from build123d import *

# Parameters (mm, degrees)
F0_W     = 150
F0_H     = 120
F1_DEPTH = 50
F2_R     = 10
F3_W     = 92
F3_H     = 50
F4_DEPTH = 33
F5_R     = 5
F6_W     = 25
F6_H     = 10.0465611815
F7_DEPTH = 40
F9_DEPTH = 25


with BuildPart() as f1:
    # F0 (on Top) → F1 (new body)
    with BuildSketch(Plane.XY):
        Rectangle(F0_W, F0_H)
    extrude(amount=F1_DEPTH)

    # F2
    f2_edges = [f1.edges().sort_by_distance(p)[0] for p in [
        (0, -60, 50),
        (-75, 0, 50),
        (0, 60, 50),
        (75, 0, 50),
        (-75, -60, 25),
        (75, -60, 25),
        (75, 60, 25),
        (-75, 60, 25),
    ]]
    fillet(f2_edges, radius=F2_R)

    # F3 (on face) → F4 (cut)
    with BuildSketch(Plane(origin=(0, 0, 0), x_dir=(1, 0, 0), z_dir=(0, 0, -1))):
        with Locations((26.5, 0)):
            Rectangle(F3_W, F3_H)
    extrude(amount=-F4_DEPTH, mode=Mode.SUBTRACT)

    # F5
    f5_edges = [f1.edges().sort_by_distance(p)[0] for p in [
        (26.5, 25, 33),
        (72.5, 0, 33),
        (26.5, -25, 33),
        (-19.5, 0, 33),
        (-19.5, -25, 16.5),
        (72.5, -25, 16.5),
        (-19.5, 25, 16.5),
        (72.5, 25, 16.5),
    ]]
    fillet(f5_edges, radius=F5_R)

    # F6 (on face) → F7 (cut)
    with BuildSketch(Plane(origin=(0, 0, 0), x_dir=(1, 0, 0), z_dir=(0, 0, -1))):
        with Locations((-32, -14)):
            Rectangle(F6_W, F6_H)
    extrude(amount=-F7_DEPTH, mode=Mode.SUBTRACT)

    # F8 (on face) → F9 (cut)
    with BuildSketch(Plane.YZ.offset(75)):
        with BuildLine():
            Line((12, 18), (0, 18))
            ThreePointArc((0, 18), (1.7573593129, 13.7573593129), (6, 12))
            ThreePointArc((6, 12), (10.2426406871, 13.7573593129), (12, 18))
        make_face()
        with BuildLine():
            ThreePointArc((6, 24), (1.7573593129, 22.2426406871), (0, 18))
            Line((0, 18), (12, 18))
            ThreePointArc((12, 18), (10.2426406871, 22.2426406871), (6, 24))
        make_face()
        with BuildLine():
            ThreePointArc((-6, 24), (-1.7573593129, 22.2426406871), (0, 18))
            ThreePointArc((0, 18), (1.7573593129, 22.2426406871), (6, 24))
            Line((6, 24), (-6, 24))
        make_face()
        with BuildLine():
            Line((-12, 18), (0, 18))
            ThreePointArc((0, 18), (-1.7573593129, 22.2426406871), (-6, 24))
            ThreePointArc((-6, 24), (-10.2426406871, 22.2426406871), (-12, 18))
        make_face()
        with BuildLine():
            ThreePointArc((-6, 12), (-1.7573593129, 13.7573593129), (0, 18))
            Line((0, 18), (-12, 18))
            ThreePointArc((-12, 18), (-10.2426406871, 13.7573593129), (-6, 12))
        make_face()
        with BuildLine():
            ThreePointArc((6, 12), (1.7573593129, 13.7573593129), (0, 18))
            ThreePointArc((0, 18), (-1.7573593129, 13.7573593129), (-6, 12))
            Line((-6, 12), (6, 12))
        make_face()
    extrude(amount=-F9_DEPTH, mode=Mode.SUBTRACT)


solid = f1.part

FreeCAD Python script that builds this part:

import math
import FreeCAD as App
import Part
import Sketcher
from FreeCAD import Vector


def edges_at(feature, points):
    """Names of the edges that pass closest to the given points."""
    edges = feature.Shape.Edges
    near = lambda p: min(range(len(edges)), key=lambda i: edges[i].distToShape(Part.Vertex(*p))[0])
    return sorted({f"Edge{near(p) + 1}" for p in points})

doc = App.newDocument("Part")
body = doc.addObject("PartDesign::Body", "Body")

sketch1 = body.newObject("Sketcher::SketchObject", "Sketch")
sketch1.AttachmentSupport = (doc.getObject("XY_Plane"), [""])
sketch1.MapMode = "FlatFace"
sketch1.addGeometry([
    Part.LineSegment(Vector(-75, 60, 0), Vector(-75, -60, 0)),
    Part.LineSegment(Vector(-75, -60, 0), Vector(75, -60, 0)),
    Part.LineSegment(Vector(75, -60, 0), Vector(75, 60, 0)),
    Part.LineSegment(Vector(75, 60, 0), Vector(-75, 60, 0)),
], False)
sketch1.addConstraint([
    Sketcher.Constraint("Coincident", 0, 2, 1, 1),
    Sketcher.Constraint("Coincident", 1, 2, 2, 1),
    Sketcher.Constraint("Coincident", 2, 2, 3, 1),
    Sketcher.Constraint("Coincident", 3, 2, 0, 1),
    Sketcher.Constraint("Vertical", 0),
    Sketcher.Constraint("Horizontal", 1),
    Sketcher.Constraint("Vertical", 2),
    Sketcher.Constraint("Horizontal", 3),
    Sketcher.Constraint("Symmetric", 0, 2, 2, 2, -1, 1),
    Sketcher.Constraint("DistanceX", 1, 1, 1, 2, 150.0),
    Sketcher.Constraint("DistanceY", 0, 2, 0, 1, 120.0),
])
pad1 = body.newObject("PartDesign::Pad", "Pad")
pad1.Profile = sketch1
pad1.Length = 50
doc.recompute()

fillet = body.newObject("PartDesign::Fillet", "Fillet")
fillet.Base = (pad1, edges_at(pad1, [
    (0, -60, 50),
    (-75, 0, 50),
    (0, 60, 50),
    (75, 0, 50),
    (-75, -60, 25),
    (75, -60, 25),
    (75, 60, 25),
    (-75, 60, 25),
]))
fillet.Radius = 10

sketch2 = body.newObject("Sketcher::SketchObject", "Sketch001")
sketch2.AttachmentSupport = (doc.getObject("XY_Plane"), [""])
sketch2.MapMode = "FlatFace"
sketch2.addGeometry([
    Part.LineSegment(Vector(-20, -25, 0), Vector(-20, 25, 0)),
    Part.LineSegment(Vector(-20, 25, 0), Vector(72, 25, 0)),
    Part.LineSegment(Vector(72, 25, 0), Vector(72, -25, 0)),
    Part.LineSegment(Vector(72, -25, 0), Vector(-20, -25, 0)),
], False)
sketch2.addConstraint([
    Sketcher.Constraint("Coincident", 0, 2, 1, 1),
    Sketcher.Constraint("Coincident", 1, 2, 2, 1),
    Sketcher.Constraint("Coincident", 2, 2, 3, 1),
    Sketcher.Constraint("Coincident", 3, 2, 0, 1),
    Sketcher.Constraint("Vertical", 0),
    Sketcher.Constraint("Horizontal", 1),
    Sketcher.Constraint("Vertical", 2),
    Sketcher.Constraint("Horizontal", 3),
    Sketcher.Constraint("DistanceX", 1, 1, 1, 2, 92.0),
    Sketcher.Constraint("DistanceY", 0, 1, 0, 2, 50.0),
    Sketcher.Constraint("DistanceY", -1, 1, 0, 2, 25.0),
    Sketcher.Constraint("DistanceX", 0, 2, -1, 1, 19.5),
])
pocket1 = body.newObject("PartDesign::Pocket", "Pocket")
pocket1.Profile = sketch2
pocket1.Length = 33
pocket1.Reversed = True
doc.recompute()

fillet2 = body.newObject("PartDesign::Fillet", "Fillet001")
fillet2.Base = (pocket1, edges_at(pocket1, [
    (26.5, 25, 33),
    (72.5, 0, 33),
    (26.5, -25, 33),
    (-19.5, 0, 33),
    (-19.5, -25, 16.5),
    (72.5, -25, 16.5),
    (-19.5, 25, 16.5),
    (72.5, 25, 16.5),
]))
fillet2.Radius = 5

sketch3 = body.newObject("Sketcher::SketchObject", "Sketch002")
sketch3.AttachmentSupport = (doc.getObject("XY_Plane"), [""])
sketch3.MapMode = "FlatFace"
sketch3.addGeometry([
    Part.LineSegment(Vector(-44, 9, 0), Vector(-44, 19, 0)),
    Part.LineSegment(Vector(-44, 19, 0), Vector(-20, 19, 0)),
    Part.LineSegment(Vector(-20, 19, 0), Vector(-20, 9, 0)),
    Part.LineSegment(Vector(-20, 9, 0), Vector(-44, 9, 0)),
], False)
sketch3.addConstraint([
    Sketcher.Constraint("Coincident", 0, 2, 1, 1),
    Sketcher.Constraint("Coincident", 1, 2, 2, 1),
    Sketcher.Constraint("Coincident", 2, 2, 3, 1),
    Sketcher.Constraint("Coincident", 3, 2, 0, 1),
    Sketcher.Constraint("Vertical", 0),
    Sketcher.Constraint("Horizontal", 1),
    Sketcher.Constraint("Vertical", 2),
    Sketcher.Constraint("Horizontal", 3),
    Sketcher.Constraint("DistanceX", 1, 1, 1, 2, 25.0),
    Sketcher.Constraint("DistanceX", 0, 2, -1, 1, 44.5),
    Sketcher.Constraint("DistanceY", 0, 1, 0, 2, 10.046561),
    Sketcher.Constraint("DistanceY", -1, 1, 0, 2, 19.023281),
])
pocket2 = body.newObject("PartDesign::Pocket", "Pocket001")
pocket2.Profile = sketch3
pocket2.Length = 40
pocket2.Reversed = True

sketch4 = body.newObject("Sketcher::SketchObject", "Sketch003")
sketch4.AttachmentSupport = (doc.getObject("YZ_Plane"), [""])
sketch4.MapMode = "FlatFace"
sketch4.AttachmentOffset = App.Placement(Vector(0, 0, 75), App.Rotation())
sketch4.addGeometry([
    Part.ArcOfCircle(Part.Circle(Vector(6, 18, 0), Vector(0, 0, 1), 6), math.radians(-90), math.radians(0)),
    Part.ArcOfCircle(Part.Circle(Vector(6, 18, 0), Vector(0, 0, 1), 6), math.radians(0), math.radians(90)),
    Part.LineSegment(Vector(6, 24, 0), Vector(-6, 24, 0)),
    Part.ArcOfCircle(Part.Circle(Vector(-6, 18, 0), Vector(0, 0, 1), 6), math.radians(90), math.radians(180)),
    Part.ArcOfCircle(Part.Circle(Vector(-6, 18, 0), Vector(0, 0, 1), 6), math.radians(180), math.radians(270)),
    Part.LineSegment(Vector(-6, 12, 0), Vector(6, 12, 0)),
], False)
sketch4.addConstraint([
    Sketcher.Constraint("Tangent", 0, 2, 1, 1),
    Sketcher.Constraint("Tangent", 1, 2, 2, 1),
    Sketcher.Constraint("Tangent", 2, 2, 3, 1),
    Sketcher.Constraint("Tangent", 3, 2, 4, 1),
    Sketcher.Constraint("Tangent", 4, 2, 5, 1),
    Sketcher.Constraint("Tangent", 5, 2, 0, 1),
    Sketcher.Constraint("Horizontal", 2),
    Sketcher.Constraint("Horizontal", 5),
    Sketcher.Constraint("Equal", 0, 1),
    Sketcher.Constraint("Equal", 1, 3),
    Sketcher.Constraint("Symmetric", 0, 2, 3, 2, -2),
    Sketcher.Constraint("Horizontal", 4, 3, 0, 2),
    Sketcher.Constraint("Radius", 0, 6.0),
    Sketcher.Constraint("DistanceX", 2, 2, 2, 1, 12.0),
    Sketcher.Constraint("DistanceY", -1, 1, 0, 3, 18.0),
])
pocket3 = body.newObject("PartDesign::Pocket", "Pocket002")
pocket3.Profile = sketch4
pocket3.Length = 25

doc.recompute()
